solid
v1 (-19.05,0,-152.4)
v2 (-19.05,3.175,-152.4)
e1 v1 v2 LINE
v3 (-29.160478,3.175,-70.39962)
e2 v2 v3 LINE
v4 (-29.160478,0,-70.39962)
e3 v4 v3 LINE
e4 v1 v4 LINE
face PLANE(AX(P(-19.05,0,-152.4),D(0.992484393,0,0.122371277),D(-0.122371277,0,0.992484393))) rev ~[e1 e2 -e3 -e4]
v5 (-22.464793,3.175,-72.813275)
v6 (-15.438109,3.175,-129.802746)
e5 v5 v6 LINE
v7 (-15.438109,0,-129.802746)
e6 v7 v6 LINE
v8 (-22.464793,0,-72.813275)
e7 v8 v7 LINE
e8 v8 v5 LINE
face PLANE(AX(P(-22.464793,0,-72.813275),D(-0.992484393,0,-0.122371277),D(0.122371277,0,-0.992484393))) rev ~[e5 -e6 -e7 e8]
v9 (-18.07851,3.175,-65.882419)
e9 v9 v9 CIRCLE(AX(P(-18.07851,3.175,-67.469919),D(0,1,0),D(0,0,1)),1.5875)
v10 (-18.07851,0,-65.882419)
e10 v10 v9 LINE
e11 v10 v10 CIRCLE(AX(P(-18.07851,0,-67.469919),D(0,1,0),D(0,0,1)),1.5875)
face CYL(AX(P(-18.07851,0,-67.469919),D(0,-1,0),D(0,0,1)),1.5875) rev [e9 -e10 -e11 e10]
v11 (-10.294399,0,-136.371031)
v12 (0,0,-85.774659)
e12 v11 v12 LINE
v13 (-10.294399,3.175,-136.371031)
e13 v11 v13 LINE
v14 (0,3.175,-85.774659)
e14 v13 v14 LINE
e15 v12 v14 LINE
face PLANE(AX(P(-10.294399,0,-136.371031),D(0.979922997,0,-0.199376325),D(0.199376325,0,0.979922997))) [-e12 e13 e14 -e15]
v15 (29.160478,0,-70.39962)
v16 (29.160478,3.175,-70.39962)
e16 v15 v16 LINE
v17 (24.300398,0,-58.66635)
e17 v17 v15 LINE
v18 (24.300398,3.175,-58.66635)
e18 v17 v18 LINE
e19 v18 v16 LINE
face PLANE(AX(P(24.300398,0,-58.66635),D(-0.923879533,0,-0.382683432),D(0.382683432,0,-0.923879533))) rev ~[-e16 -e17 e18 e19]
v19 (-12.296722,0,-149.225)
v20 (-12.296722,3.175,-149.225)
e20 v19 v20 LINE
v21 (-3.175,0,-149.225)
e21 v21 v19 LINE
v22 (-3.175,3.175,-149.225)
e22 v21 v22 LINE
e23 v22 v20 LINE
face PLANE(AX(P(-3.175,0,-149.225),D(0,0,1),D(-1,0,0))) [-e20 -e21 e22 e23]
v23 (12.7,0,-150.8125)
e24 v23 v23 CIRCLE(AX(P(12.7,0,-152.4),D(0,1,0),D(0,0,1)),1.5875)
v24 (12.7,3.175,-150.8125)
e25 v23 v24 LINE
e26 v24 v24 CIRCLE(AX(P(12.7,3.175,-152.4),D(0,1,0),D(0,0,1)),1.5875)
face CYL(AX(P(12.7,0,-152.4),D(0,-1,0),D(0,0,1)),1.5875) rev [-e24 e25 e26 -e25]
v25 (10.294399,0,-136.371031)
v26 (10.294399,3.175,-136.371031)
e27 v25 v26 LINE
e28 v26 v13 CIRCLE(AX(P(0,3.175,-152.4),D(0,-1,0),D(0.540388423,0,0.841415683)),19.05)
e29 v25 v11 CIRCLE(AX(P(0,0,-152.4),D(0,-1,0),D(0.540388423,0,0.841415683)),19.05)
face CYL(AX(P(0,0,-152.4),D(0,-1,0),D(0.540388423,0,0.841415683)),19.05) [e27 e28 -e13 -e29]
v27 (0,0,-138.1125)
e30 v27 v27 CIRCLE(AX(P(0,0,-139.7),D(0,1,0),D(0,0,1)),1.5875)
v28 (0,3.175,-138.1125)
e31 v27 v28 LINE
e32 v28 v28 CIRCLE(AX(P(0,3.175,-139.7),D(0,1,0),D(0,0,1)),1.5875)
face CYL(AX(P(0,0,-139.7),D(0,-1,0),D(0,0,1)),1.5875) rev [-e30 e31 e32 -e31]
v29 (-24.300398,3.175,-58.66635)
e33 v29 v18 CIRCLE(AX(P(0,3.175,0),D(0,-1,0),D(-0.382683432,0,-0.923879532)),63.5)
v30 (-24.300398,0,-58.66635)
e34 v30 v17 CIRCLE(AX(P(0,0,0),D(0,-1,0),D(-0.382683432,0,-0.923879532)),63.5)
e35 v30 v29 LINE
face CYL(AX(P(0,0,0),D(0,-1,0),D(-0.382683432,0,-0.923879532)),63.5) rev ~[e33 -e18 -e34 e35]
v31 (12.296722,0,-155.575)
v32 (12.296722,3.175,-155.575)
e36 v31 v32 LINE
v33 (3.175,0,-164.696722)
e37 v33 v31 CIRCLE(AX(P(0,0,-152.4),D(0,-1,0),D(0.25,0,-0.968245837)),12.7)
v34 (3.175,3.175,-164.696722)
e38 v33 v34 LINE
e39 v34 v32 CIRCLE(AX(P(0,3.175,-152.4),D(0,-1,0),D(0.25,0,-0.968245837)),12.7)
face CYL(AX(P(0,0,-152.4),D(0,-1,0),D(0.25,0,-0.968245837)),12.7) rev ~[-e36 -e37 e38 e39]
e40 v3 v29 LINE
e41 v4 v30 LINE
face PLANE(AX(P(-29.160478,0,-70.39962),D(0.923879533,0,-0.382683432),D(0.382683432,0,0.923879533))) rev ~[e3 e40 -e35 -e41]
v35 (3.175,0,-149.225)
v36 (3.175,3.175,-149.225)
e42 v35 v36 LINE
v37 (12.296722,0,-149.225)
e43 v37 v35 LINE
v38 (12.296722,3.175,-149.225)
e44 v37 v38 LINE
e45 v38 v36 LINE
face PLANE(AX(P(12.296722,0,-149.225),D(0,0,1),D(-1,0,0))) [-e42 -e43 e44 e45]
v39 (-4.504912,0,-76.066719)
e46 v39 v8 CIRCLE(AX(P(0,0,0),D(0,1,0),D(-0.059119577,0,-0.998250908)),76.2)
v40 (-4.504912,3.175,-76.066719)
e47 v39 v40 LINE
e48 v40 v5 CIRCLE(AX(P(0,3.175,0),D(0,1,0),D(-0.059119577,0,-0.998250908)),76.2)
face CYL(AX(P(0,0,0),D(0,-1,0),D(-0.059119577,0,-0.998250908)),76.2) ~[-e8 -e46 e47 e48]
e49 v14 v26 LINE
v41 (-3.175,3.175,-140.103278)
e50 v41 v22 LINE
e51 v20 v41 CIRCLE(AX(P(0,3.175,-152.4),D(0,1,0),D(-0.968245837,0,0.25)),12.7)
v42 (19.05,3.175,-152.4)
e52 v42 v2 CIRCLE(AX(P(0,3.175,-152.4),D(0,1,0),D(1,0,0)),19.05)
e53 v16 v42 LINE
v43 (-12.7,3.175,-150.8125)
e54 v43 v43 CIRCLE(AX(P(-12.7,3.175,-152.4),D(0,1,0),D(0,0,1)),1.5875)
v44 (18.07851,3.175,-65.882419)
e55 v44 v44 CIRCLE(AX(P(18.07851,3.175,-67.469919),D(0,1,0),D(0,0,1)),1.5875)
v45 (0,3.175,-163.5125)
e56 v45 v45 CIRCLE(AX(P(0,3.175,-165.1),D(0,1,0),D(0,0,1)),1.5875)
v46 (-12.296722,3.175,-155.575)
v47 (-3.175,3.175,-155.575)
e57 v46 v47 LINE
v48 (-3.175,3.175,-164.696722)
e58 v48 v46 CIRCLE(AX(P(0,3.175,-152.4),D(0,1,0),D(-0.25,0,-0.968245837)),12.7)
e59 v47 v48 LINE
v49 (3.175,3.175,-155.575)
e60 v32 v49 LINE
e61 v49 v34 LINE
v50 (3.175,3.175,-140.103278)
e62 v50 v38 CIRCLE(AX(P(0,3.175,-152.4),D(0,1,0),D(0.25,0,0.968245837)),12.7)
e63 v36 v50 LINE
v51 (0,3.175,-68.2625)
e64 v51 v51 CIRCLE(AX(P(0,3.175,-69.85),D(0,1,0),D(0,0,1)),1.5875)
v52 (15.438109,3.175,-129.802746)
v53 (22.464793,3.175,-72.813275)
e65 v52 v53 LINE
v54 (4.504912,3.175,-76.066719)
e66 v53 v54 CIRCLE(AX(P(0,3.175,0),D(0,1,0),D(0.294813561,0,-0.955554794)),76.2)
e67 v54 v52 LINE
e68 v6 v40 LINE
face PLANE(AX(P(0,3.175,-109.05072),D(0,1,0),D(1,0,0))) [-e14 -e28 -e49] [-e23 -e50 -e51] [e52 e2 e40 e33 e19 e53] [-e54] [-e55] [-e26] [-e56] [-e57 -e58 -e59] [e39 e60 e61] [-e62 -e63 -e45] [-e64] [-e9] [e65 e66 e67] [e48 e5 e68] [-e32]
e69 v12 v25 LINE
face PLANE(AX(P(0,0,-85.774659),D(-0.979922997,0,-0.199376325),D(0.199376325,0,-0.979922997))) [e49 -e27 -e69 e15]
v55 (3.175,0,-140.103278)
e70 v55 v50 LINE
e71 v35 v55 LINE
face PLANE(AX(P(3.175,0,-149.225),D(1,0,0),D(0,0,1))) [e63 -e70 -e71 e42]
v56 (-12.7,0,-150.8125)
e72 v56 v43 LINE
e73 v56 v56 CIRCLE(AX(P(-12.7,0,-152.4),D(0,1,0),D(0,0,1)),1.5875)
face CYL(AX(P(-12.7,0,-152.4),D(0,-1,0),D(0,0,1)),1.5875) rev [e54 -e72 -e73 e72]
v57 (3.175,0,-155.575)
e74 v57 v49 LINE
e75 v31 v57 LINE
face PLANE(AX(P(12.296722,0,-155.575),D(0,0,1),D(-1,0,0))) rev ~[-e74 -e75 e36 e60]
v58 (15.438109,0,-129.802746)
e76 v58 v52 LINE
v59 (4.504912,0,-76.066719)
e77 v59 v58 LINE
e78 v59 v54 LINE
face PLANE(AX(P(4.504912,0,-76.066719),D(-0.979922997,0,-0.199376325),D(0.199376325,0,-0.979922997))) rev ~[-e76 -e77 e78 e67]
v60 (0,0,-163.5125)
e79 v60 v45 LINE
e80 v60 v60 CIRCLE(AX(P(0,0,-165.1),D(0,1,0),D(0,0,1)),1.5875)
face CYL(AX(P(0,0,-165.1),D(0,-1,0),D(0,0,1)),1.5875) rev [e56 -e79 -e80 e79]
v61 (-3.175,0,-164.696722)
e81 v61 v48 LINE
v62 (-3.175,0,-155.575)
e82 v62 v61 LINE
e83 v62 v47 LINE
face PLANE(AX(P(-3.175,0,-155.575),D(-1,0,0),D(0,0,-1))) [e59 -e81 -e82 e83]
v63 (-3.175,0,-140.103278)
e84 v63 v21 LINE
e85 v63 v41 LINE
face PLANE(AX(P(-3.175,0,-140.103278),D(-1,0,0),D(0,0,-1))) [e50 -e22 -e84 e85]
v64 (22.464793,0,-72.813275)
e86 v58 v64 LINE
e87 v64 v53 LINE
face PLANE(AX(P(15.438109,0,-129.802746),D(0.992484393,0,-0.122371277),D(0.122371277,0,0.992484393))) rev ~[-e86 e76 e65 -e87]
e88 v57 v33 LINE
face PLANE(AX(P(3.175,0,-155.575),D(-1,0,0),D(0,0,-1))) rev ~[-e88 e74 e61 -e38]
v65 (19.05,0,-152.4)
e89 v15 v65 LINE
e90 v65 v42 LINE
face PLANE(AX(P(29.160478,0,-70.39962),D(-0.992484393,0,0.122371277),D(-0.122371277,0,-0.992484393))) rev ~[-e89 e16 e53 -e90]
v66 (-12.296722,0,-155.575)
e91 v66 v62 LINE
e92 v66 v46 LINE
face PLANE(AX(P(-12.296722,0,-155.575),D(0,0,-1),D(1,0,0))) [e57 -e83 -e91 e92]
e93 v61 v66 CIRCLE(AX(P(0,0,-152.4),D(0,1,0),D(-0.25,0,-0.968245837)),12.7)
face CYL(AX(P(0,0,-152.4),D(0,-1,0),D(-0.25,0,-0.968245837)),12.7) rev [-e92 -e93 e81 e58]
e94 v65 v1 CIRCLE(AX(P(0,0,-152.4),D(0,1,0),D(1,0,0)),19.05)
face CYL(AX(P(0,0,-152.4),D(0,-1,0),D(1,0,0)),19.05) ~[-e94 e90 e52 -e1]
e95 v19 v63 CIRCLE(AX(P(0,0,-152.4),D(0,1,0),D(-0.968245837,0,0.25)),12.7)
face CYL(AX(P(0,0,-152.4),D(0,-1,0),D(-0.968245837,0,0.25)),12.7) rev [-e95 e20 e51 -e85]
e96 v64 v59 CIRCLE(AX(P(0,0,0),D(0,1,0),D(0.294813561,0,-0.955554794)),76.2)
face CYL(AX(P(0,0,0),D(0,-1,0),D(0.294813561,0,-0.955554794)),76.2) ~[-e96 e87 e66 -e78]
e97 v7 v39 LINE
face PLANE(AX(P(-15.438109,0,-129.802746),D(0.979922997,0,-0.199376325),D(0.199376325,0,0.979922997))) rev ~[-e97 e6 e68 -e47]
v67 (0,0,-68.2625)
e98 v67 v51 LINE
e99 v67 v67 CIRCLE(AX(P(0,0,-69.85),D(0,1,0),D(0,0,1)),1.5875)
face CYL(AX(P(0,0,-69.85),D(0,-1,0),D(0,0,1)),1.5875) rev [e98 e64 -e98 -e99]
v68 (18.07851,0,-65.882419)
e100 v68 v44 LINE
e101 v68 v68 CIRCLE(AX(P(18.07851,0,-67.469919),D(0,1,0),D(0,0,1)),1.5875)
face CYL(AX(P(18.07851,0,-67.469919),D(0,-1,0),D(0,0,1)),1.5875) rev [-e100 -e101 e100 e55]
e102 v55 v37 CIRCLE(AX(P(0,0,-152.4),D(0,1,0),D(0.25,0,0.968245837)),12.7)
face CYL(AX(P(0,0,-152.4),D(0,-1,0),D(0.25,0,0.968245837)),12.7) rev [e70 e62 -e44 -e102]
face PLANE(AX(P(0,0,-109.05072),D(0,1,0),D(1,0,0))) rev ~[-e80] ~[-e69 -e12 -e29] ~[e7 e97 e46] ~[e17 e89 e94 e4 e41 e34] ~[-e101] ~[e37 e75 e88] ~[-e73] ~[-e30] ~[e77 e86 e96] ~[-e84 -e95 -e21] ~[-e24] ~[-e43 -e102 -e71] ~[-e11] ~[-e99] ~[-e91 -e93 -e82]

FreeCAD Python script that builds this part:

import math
import FreeCAD as App
import Part
import Sketcher
Q = App.Units.Quantity

doc = App.newDocument("Part")
params = doc.addObject("Spreadsheet::Sheet", "Params")
for row, (alias, value) in enumerate([
    ("sketch1_radius", "3 in"),
    ("sketch1_radius2", "2.5 in"),
    ("sketch1_radius3", "0.5 in"),
    ("sketch1_radius4", "0.75 in"),
    ("sketch1_diameter", "0.125 in"),
    ("pad1_length", "0.125 in"),
], start=1):
    params.set(f"A{row}", alias)
    params.set(f"B{row}", "=" + value)
    params.setAlias(f"B{row}", alias)

body = doc.addObject("PartDesign::Body", "Body")

# Sketch on XZ plane
sketch1 = doc.addObject("Sketcher::SketchObject", "Sketch")
body.addObject(sketch1)
sketch1.AttachmentSupport = (doc.XZ_Plane, [""])
sketch1.MapMode = "FlatFace"
sketch1.addGeometry(Part.LineSegment(App.Vector(-19.05, -152.4, 0), App.Vector(-29.160478, -70.39962, 0)), False)
sketch1.addGeometry(Part.LineSegment(App.Vector(-29.160478, -70.39962, 0), App.Vector(-24.300398, -58.66635, 0)), False)
sketch1.addGeometry(Part.ArcOfCircle(Part.Circle(App.Vector(0, 0, 0), App.Vector(0, 0, 1), 63.5), math.radians(-112.5), math.radians(-67.5)), False)
sketch1.addGeometry(Part.LineSegment(App.Vector(24.300398, -58.66635, 0), App.Vector(29.160478, -70.39962, 0)), False)
sketch1.addGeometry(Part.LineSegment(App.Vector(29.160478, -70.39962, 0), App.Vector(19.05, -152.4, 0)), False)
sketch1.addGeometry(Part.ArcOfCircle(Part.Circle(App.Vector(0, -152.4, 0), App.Vector(0, 0, 1), 19.05), math.radians(180), math.radians(360)), False)
sketch1.addGeometry(Part.Circle(App.Vector(-18.07851, -67.469919, 0), App.Vector(0, 0, 1), 1.5875), False)
sketch1.addGeometry(Part.LineSegment(App.Vector(-22.464793, -72.813275, 0), App.Vector(-15.438109, -129.802746, 0)), False)
sketch1.addGeometry(Part.LineSegment(App.Vector(-15.438109, -129.802746, 0), App.Vector(-4.504912, -76.066719, 0)), False)
sketch1.addGeometry(Part.ArcOfCircle(Part.Circle(App.Vector(0, 0, 0), App.Vector(0, 0, 1), 76.2), math.radians(-107.146358), math.radians(-93.389279)), False)
sketch1.addGeometry(Part.Circle(App.Vector(0, -69.85, 0), App.Vector(0, 0, 1), 1.5875), False)
sketch1.addGeometry(Part.Circle(App.Vector(18.07851, -67.469919, 0), App.Vector(0, 0, 1), 1.5875), False)
sketch1.addGeometry(Part.LineSegment(App.Vector(0, -85.774659, 0), App.Vector(-10.294399, -136.371031, 0)), False)
sketch1.addGeometry(Part.ArcOfCircle(Part.Circle(App.Vector(0, -152.4, 0), App.Vector(0, 0, 1), 19.05), math.radians(57.289916), math.radians(122.710084)), False)
sketch1.addGeometry(Part.LineSegment(App.Vector(10.294399, -136.371031, 0), App.Vector(0, -85.774659, 0)), False)
sketch1.addGeometry(Part.ArcOfCircle(Part.Circle(App.Vector(0, 0, 0), App.Vector(0, 0, 1), 76.2), math.radians(-86.610721), math.radians(-72.853642)), False)
sketch1.addGeometry(Part.LineSegment(App.Vector(4.504912, -76.066719, 0), App.Vector(15.438109, -129.802746, 0)), False)
sketch1.addGeometry(Part.LineSegment(App.Vector(15.438109, -129.802746, 0), App.Vector(22.464793, -72.813275, 0)), False)
sketch1.addGeometry(Part.Circle(App.Vector(-12.7, -152.4, 0), App.Vector(0, 0, 1), 1.5875), False)
sketch1.addGeometry(Part.LineSegment(App.Vector(-12.296722, -149.225, 0), App.Vector(-3.175, -149.225, 0)), False)
sketch1.addGeometry(Part.LineSegment(App.Vector(-3.175, -149.225, 0), App.Vector(-3.175, -140.103278, 0)), False)
sketch1.addGeometry(Part.ArcOfCircle(Part.Circle(App.Vector(0, -152.4, 0), App.Vector(0, 0, 1), 12.7), math.radians(104.477512), math.radians(165.522488)), False)
sketch1.addGeometry(Part.LineSegment(App.Vector(-3.175, -164.696722, 0), App.Vector(-3.175, -155.575, 0)), False)
sketch1.addGeometry(Part.LineSegment(App.Vector(-3.175, -155.575, 0), App.Vector(-12.296722, -155.575, 0)), False)
sketch1.addGeometry(Part.ArcOfCircle(Part.Circle(App.Vector(0, -152.4, 0), App.Vector(0, 0, 1), 12.7), math.radians(-165.522488), math.radians(-104.477512)), False)
sketch1.addGeometry(Part.Circle(App.Vector(0, -139.7, 0), App.Vector(0, 0, 1), 1.5875), False)
sketch1.addGeometry(Part.LineSegment(App.Vector(3.175, -149.225, 0), App.Vector(12.296722, -149.225, 0)), False)
sketch1.addGeometry(Part.ArcOfCircle(Part.Circle(App.Vector(0, -152.4, 0), App.Vector(0, 0, 1), 12.7), math.radians(14.477512), math.radians(75.522488)), False)
sketch1.addGeometry(Part.LineSegment(App.Vector(3.175, -140.103278, 0), App.Vector(3.175, -149.225, 0)), False)
sketch1.addGeometry(Part.Circle(App.Vector(0, -165.1, 0), App.Vector(0, 0, 1), 1.5875), False)
sketch1.addGeometry(Part.ArcOfCircle(Part.Circle(App.Vector(0, -152.4, 0), App.Vector(0, 0, 1), 12.7), math.radians(-75.522488), math.radians(-14.477512)), False)
sketch1.addGeometry(Part.LineSegment(App.Vector(12.296722, -155.575, 0), App.Vector(3.175, -155.575, 0)), False)
sketch1.addGeometry(Part.LineSegment(App.Vector(3.175, -155.575, 0), App.Vector(3.175, -164.696722, 0)), False)
sketch1.addGeometry(Part.Circle(App.Vector(12.7, -152.4, 0), App.Vector(0, 0, 1), 1.5875), False)
sketch1.addConstraint(Sketcher.Constraint("Coincident", 0, 2, 1, 1))
sketch1.addConstraint(Sketcher.Constraint("Coincident", 1, 2, 2, 1))
sketch1.addConstraint(Sketcher.Constraint("Coincident", 2, 2, 3, 1))
sketch1.addConstraint(Sketcher.Constraint("Coincident", 3, 2, 4, 1))
sketch1.addConstraint(Sketcher.Constraint("Coincident", 4, 2, 5, 2))
sketch1.addConstraint(Sketcher.Constraint("Coincident", 5, 1, 0, 1))
sketch1.addConstraint(Sketcher.Constraint("Coincident", 7, 2, 8, 1))
sketch1.addConstraint(Sketcher.Constraint("Coincident", 8, 2, 9, 2))
sketch1.addConstraint(Sketcher.Constraint("Coincident", 9, 1, 7, 1))
sketch1.addConstraint(Sketcher.Constraint("Coincident", 12, 2, 13, 2))
sketch1.addConstraint(Sketcher.Constraint("Coincident", 13, 1, 14, 1))
sketch1.addConstraint(Sketcher.Constraint("Coincident", 14, 2, 12, 1))
sketch1.addConstraint(Sketcher.Constraint("Coincident", 15, 1, 16, 1))
sketch1.addConstraint(Sketcher.Constraint("Coincident", 16, 2, 17, 1))
sketch1.addConstraint(Sketcher.Constraint("Coincident", 17, 2, 15, 2))
sketch1.addConstraint(Sketcher.Constraint("Coincident", 19, 2, 20, 1))
sketch1.addConstraint(Sketcher.Constraint("Coincident", 20, 2, 21, 1))
sketch1.addConstraint(Sketcher.Constraint("Coincident", 21, 2, 19, 1))
sketch1.addConstraint(Sketcher.Constraint("Coincident", 22, 2, 23, 1))
sketch1.addConstraint(Sketcher.Constraint("Coincident", 23, 2, 24, 1))
sketch1.addConstraint(Sketcher.Constraint("Coincident", 24, 2, 22, 1))
sketch1.addConstraint(Sketcher.Constraint("Coincident", 26, 2, 27, 1))
sketch1.addConstraint(Sketcher.Constraint("Coincident", 27, 2, 28, 1))
sketch1.addConstraint(Sketcher.Constraint("Coincident", 28, 2, 26, 1))
sketch1.addConstraint(Sketcher.Constraint("Coincident", 30, 2, 31, 1))
sketch1.addConstraint(Sketcher.Constraint("Coincident", 31, 2, 32, 1))
sketch1.addConstraint(Sketcher.Constraint("Coincident", 32, 2, 30, 1))
sketch1.addConstraint(Sketcher.Constraint("Horizontal", 19))
sketch1.addConstraint(Sketcher.Constraint("Vertical", 20))
sketch1.addConstraint(Sketcher.Constraint("Vertical", 22))
sketch1.addConstraint(Sketcher.Constraint("Horizontal", 23))
sketch1.addConstraint(Sketcher.Constraint("Horizontal", 26))
sketch1.addConstraint(Sketcher.Constraint("Vertical", 28))
sketch1.addConstraint(Sketcher.Constraint("Horizontal", 31))
sketch1.addConstraint(Sketcher.Constraint("Vertical", 32))
sketch1.addConstraint(Sketcher.Constraint("Coincident", 2, 3, -1, 1))
sketch1.addConstraint(Sketcher.Constraint("Coincident", 9, 3, -1, 1))
sketch1.addConstraint(Sketcher.Constraint("Coincident", 15, 3, -1, 1))
sketch1.addConstraint(Sketcher.Constraint("Coincident", 13, 3, 5, 3))
sketch1.addConstraint(Sketcher.Constraint("Coincident", 21, 3, 5, 3))
sketch1.addConstraint(Sketcher.Constraint("Coincident", 24, 3, 5, 3))
sketch1.addConstraint(Sketcher.Constraint("Coincident", 27, 3, 5, 3))
sketch1.addConstraint(Sketcher.Constraint("Coincident", 30, 3, 5, 3))
sketch1.addConstraint(Sketcher.Constraint("Equal", 6, 10))
sketch1.addConstraint(Sketcher.Constraint("Equal", 10, 11))
sketch1.addConstraint(Sketcher.Constraint("Equal", 5, 13))
sketch1.addConstraint(Sketcher.Constraint("Equal", 9, 15))
sketch1.addConstraint(Sketcher.Constraint("Equal", 11, 18))
sketch1.addConstraint(Sketcher.Constraint("Equal", 21, 24))
sketch1.addConstraint(Sketcher.Constraint("Equal", 18, 25))
sketch1.addConstraint(Sketcher.Constraint("Equal", 24, 27))
sketch1.addConstraint(Sketcher.Constraint("Equal", 25, 29))
sketch1.addConstraint(Sketcher.Constraint("Equal", 27, 30))
sketch1.addConstraint(Sketcher.Constraint("Equal", 29, 33))
sketch1.addConstraint(Sketcher.Constraint("Symmetric", 6, 3, 11, 3, -2))
sketch1.addConstraint(Sketcher.Constraint("Symmetric", 18, 3, 33, 3, -2))
sketch1.addConstraint(Sketcher.Constraint("Symmetric", 0, 2, 3, 2, -2))
sketch1.addConstraint(Sketcher.Constraint("Symmetric", 4, 2, 5, 1, -2))
sketch1.addConstraint(Sketcher.Constraint("Symmetric", 7, 2, 16, 2, -2))
sketch1.addConstraint(Sketcher.Constraint("Symmetric", 19, 2, 28, 2, -2))
sketch1.addConstraint(Sketcher.Constraint("Symmetric", 22, 2, 31, 2, -2))
sketch1.addConstraint(Sketcher.Constraint("PointOnObject", 10, 3, -2))
sketch1.addConstraint(Sketcher.Constraint("PointOnObject", 25, 3, -2))
sketch1.addConstraint(Sketcher.Constraint("PointOnObject", 29, 3, -2))
sketch1.addConstraint(Sketcher.Constraint("PointOnObject", 14, 2, -2))
sketch1.addConstraint(Sketcher.Constraint("Parallel", 0, 7))
sketch1.addConstraint(Sketcher.Constraint("Parallel", 8, 12))
sketch1.addConstraint(Sketcher.Constraint("Parallel", 14, 16))
sketch1.addConstraint(Sketcher.Constraint("Parallel", 4, 17))
sketch1.addConstraint(Sketcher.Constraint("Horizontal", 13, 3, 18, 3))
sketch1.addConstraint(Sketcher.Constraint("Horizontal", 1, 2, 2, 2))
sketch1.addConstraint(Sketcher.Constraint("Horizontal", 33, 3, 4, 2))
sketch1.addConstraint(Sketcher.Constraint("Horizontal", 12, 2, 13, 1))
sketch1.addConstraint(Sketcher.Constraint("Vertical", 20, 2, 22, 2))
sketch1.addConstraint(Sketcher.Constraint("Vertical", 21, 2, 23, 2))
sketch1.addConstraint(Sketcher.Constraint("Equal", 31, 20))
sketch1.addConstraint(Sketcher.Constraint("Radius", 9, Q("3 in")))
sketch1.addConstraint(Sketcher.Constraint("Radius", 2, Q("2.5 in")))
sketch1.addConstraint(Sketcher.Constraint("Radius", 21, Q("0.5 in")))
sketch1.addConstraint(Sketcher.Constraint("Radius", 5, Q("0.75 in")))
sketch1.addConstraint(Sketcher.Constraint("Diameter", 6, Q("0.125 in")))
sketch1.addConstraint(Sketcher.Constraint("DistanceY", 5, 3, -1, 1, Q("6 in")))
sketch1.addConstraint(Sketcher.Constraint("Distance", 1, Q("0.5 in")))
sketch1.addConstraint(Sketcher.Constraint("DistanceX", 18, 3, -1, 1, Q("0.5 in")))
sketch1.addConstraint(Sketcher.Constraint("DistanceY", 25, 3, -1, 1, Q("5.5 in")))
sketch1.addConstraint(Sketcher.Constraint("DistanceY", 29, 3, -1, 1, Q("6.5 in")))
sketch1.addConstraint(Sketcher.Constraint("Angle", 1, Q("67.5 deg")))
sketch1.addConstraint(Sketcher.Constraint("DistanceY", 10, 3, -1, 1, Q("2.75 in")))
sketch1.addConstraint(Sketcher.Constraint("DistanceY", 23, 2, 21, 2, Q("0.25 in")))
sketch1.addConstraint(Sketcher.Constraint("DistanceX", 12, 2, -1, 1, Q("10.294399 mm")))
sketch1.addConstraint(Sketcher.Constraint("DistanceY", 0, 2, 6, 3, Q("2.929701 mm")))
sketch1.addConstraint(Sketcher.Constraint("DistanceX", 6, 3, 8, 2, Q("13.573599 mm")))
sketch1.addConstraint(Sketcher.Constraint("DistanceY", 8, 2, 6, 3, Q("8.5968 mm")))
sketch1.addConstraint(Sketcher.Constraint("Distance", 0, Q("82.621329 mm")))
sketch1.addConstraint(Sketcher.Constraint("Distance", 8, Q("54.83699 mm")))
sketch1.addConstraint(Sketcher.Constraint("Distance", 12, Q("51.633008 mm")))
sketch1.setExpression("Constraints[76]", "Params.sketch1_radius")
sketch1.setExpression("Constraints[77]", "Params.sketch1_radius2")
sketch1.setExpression("Constraints[78]", "Params.sketch1_radius3")
sketch1.setExpression("Constraints[79]", "Params.sketch1_radius4")
sketch1.setExpression("Constraints[80]", "Params.sketch1_diameter")
pad1 = doc.addObject("PartDesign::Pad", "Pad")
body.addObject(pad1)
pad1.Profile = sketch1
pad1.setExpression("Length", "Params.pad1_length")
pad1.Reversed = True

doc.recompute()
